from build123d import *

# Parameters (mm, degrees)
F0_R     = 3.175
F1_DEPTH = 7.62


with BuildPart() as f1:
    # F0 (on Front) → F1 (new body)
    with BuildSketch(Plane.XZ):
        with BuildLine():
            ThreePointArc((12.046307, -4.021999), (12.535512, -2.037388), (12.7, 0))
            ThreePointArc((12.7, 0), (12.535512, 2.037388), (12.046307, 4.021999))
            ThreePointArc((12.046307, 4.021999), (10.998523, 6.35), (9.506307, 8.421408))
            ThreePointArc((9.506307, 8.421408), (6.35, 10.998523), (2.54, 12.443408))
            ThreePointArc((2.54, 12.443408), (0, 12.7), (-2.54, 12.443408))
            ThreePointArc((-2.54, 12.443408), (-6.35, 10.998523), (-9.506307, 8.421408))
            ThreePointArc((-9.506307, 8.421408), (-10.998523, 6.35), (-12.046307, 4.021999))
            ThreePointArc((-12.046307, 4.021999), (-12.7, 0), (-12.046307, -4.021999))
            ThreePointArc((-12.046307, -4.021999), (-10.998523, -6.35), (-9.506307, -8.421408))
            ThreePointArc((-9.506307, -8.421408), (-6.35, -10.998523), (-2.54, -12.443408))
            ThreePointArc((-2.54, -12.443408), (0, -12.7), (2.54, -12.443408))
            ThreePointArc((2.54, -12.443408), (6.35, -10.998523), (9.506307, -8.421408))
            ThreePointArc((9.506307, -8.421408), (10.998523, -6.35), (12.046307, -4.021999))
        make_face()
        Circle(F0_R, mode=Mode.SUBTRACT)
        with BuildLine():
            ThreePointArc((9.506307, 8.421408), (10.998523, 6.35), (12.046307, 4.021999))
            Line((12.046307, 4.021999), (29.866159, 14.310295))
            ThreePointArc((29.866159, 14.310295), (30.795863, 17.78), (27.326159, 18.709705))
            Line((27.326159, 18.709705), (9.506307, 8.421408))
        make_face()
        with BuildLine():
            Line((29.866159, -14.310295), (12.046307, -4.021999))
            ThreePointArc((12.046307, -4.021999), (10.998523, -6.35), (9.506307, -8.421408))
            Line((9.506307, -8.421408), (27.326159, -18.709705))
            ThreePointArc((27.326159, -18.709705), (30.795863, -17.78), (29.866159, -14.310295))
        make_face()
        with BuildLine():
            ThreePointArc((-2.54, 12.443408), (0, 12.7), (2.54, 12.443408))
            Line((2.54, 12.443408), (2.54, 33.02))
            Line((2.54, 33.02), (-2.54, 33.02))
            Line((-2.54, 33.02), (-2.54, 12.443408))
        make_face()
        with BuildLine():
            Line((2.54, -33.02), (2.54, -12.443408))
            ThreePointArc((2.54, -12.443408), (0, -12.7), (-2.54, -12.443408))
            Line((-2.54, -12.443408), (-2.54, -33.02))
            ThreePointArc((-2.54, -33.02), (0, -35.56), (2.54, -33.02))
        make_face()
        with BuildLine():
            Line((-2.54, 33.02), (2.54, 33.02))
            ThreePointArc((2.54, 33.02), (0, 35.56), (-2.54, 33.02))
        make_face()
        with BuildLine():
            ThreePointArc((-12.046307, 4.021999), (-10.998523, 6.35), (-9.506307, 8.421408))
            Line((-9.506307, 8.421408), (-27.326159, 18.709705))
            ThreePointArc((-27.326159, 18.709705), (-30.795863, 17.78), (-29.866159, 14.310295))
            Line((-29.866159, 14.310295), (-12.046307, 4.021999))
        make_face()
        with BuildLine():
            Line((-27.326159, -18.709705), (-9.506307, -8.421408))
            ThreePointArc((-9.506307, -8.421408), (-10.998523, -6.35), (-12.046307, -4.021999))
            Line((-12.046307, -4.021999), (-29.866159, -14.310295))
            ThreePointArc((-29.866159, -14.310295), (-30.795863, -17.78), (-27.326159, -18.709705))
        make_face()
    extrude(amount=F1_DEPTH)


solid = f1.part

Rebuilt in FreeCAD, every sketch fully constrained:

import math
import FreeCAD as App
import Part
import Sketcher
Q = App.Units.Quantity

doc = App.newDocument("Part")
body = doc.addObject("PartDesign::Body", "Body")

# Sketch on XZ plane
sketch1 = body.newObject("Sketcher::SketchObject", "Sketch")
sketch1.AttachmentSupport = (doc.getObject("XZ_Plane"), [""])
sketch1.MapMode = "FlatFace"
sketch1.addGeometry(Part.ArcOfCircle(Part.Circle(App.Vector(0.000051, -0.000007, 0), App.Vector(0, 0, 1), 12.699949), math.radians(-18.463083), math.radians(0.000031)), False)
sketch1.addGeometry(Part.ArcOfCircle(Part.Circle(App.Vector(0.000051, 0.000007, 0), App.Vector(0, 0, 1), 12.699949), math.radians(-0.000031), math.radians(18.463083)), False)
sketch1.addGeometry(Part.LineSegment(App.Vector(12.046307, 4.021999, 0), App.Vector(29.866159, 14.310295, 0)), False)
sketch1.addGeometry(Part.ArcOfCircle(Part.Circle(App.Vector(28.596158, 16.51, 0), App.Vector(0, 0, 1), 2.54), math.radians(-59.999986), math.radians(119.999975)), False)
sketch1.addGeometry(Part.LineSegment(App.Vector(27.326159, 18.709705, 0), App.Vector(9.506307, 8.421408, 0)), False)
sketch1.addGeometry(Part.ArcOfCircle(Part.Circle(App.Vector(0.000004, 0.00001, 0), App.Vector(0, 0, 1), 12.69999), math.radians(41.536938), math.radians(78.463052)), False)
sketch1.addGeometry(Part.LineSegment(App.Vector(2.54, 12.443408, 0), App.Vector(2.54, 33.02, 0)), False)
sketch1.addGeometry(Part.ArcOfCircle(Part.Circle(App.Vector(0, 33.02, 0), App.Vector(0, 0, 1), 2.54), math.radians(0), math.radians(180)), False)
sketch1.addGeometry(Part.LineSegment(App.Vector(-2.54, 33.02, 0), App.Vector(-2.54, 12.443408, 0)), False)
sketch1.addGeometry(Part.ArcOfCircle(Part.Circle(App.Vector(-0.000004, 0.00001, 0), App.Vector(0, 0, 1), 12.69999), math.radians(101.536948), math.radians(138.463062)), False)
sketch1.addGeometry(Part.LineSegment(App.Vector(-9.506307, 8.421408, 0), App.Vector(-27.326159, 18.709705, 0)), False)
sketch1.addGeometry(Part.ArcOfCircle(Part.Circle(App.Vector(-28.596158, 16.51, 0), App.Vector(0, 0, 1), 2.54), math.radians(60.000025), math.radians(239.999986)), False)
sketch1.addGeometry(Part.LineSegment(App.Vector(-29.866159, 14.310295, 0), App.Vector(-12.046307, 4.021999, 0)), False)
sketch1.addGeometry(Part.ArcOfCircle(Part.Circle(App.Vector(-0.000009, 0, 0), App.Vector(0, 0, 1), 12.699991), math.radians(161.536948), math.radians(198.463052)), False)
sketch1.addGeometry(Part.LineSegment(App.Vector(-12.046307, -4.021999, 0), App.Vector(-29.866159, -14.310295, 0)), False)
sketch1.addGeometry(Part.ArcOfCircle(Part.Circle(App.Vector(-28.596158, -16.51, 0), App.Vector(0, 0, 1), 2.54), math.radians(120.000014), math.radians(299.999975)), False)
sketch1.addGeometry(Part.LineSegment(App.Vector(-27.326159, -18.709705, 0), App.Vector(-9.506307, -8.421408, 0)), False)
sketch1.addGeometry(Part.ArcOfCircle(Part.Circle(App.Vector(-0.000004, -0.00001, 0), App.Vector(0, 0, 1), 12.69999), math.radians(-138.463062), math.radians(-101.536948)), False)
sketch1.addGeometry(Part.LineSegment(App.Vector(-2.54, -12.443408, 0), App.Vector(-2.54, -33.02, 0)), False)
sketch1.addGeometry(Part.ArcOfCircle(Part.Circle(App.Vector(0, -33.02, 0), App.Vector(0, 0, 1), 2.54), math.radians(180), math.radians(360)), False)
sketch1.addGeometry(Part.LineSegment(App.Vector(2.54, -33.02, 0), App.Vector(2.54, -12.443408, 0)), False)
sketch1.addGeometry(Part.ArcOfCircle(Part.Circle(App.Vector(0.000004, -0.00001, 0), App.Vector(0, 0, 1), 12.69999), math.radians(-78.463052), math.radians(-41.536938)), False)
sketch1.addGeometry(Part.LineSegment(App.Vector(9.506307, -8.421408, 0), App.Vector(27.326159, -18.709705, 0)), False)
sketch1.addGeometry(Part.ArcOfCircle(Part.Circle(App.Vector(28.596158, -16.51, 0), App.Vector(0, 0, 1), 2.54), math.radians(-119.999975), math.radians(59.999986)), False)
sketch1.addGeometry(Part.LineSegment(App.Vector(29.866159, -14.310295, 0), App.Vector(12.046307, -4.021999, 0)), False)
sketch1.addGeometry(Part.Circle(App.Vector(0, 0, 0), App.Vector(0, 0, 1), 3.175), False)
sketch1.addConstraint(Sketcher.Constraint("Tangent", 0, 2, 1, 1))
sketch1.addConstraint(Sketcher.Constraint("Coincident", 1, 2, 2, 1))
sketch1.addConstraint(Sketcher.Constraint("Tangent", 2, 2, 3, 1))
sketch1.addConstraint(Sketcher.Constraint("Tangent", 3, 2, 4, 1))
sketch1.addConstraint(Sketcher.Constraint("Coincident", 4, 2, 5, 1))
sketch1.addConstraint(Sketcher.Constraint("Coincident", 5, 2, 6, 1))
sketch1.addConstraint(Sketcher.Constraint("Tangent", 6, 2, 7, 1))
sketch1.addConstraint(Sketcher.Constraint("Tangent", 7, 2, 8, 1))
sketch1.addConstraint(Sketcher.Constraint("Coincident", 8, 2, 9, 1))
sketch1.addConstraint(Sketcher.Constraint("Coincident", 9, 2, 10, 1))
sketch1.addConstraint(Sketcher.Constraint("Tangent", 10, 2, 11, 1))
sketch1.addConstraint(Sketcher.Constraint("Tangent", 11, 2, 12, 1))
sketch1.addConstraint(Sketcher.Constraint("Coincident", 12, 2, 13, 1))
sketch1.addConstraint(Sketcher.Constraint("Coincident", 13, 2, 14, 1))
sketch1.addConstraint(Sketcher.Constraint("Tangent", 14, 2, 15, 1))
sketch1.addConstraint(Sketcher.Constraint("Tangent", 15, 2, 16, 1))
sketch1.addConstraint(Sketcher.Constraint("Coincident", 16, 2, 17, 1))
sketch1.addConstraint(Sketcher.Constraint("Coincident", 17, 2, 18, 1))
sketch1.addConstraint(Sketcher.Constraint("Tangent", 18, 2, 19, 1))
sketch1.addConstraint(Sketcher.Constraint("Tangent", 19, 2, 20, 1))
sketch1.addConstraint(Sketcher.Constraint("Coincident", 20, 2, 21, 1))
sketch1.addConstraint(Sketcher.Constraint("Coincident", 21, 2, 22, 1))
sketch1.addConstraint(Sketcher.Constraint("Tangent", 22, 2, 23, 1))
sketch1.addConstraint(Sketcher.Constraint("Tangent", 23, 2, 24, 1))
sketch1.addConstraint(Sketcher.Constraint("Coincident", 24, 2, 0, 1))
sketch1.addConstraint(Sketcher.Constraint("Vertical", 6))
sketch1.addConstraint(Sketcher.Constraint("Vertical", 8))
sketch1.addConstraint(Sketcher.Constraint("Vertical", 18))
sketch1.addConstraint(Sketcher.Constraint("Vertical", 20))
sketch1.addConstraint(Sketcher.Constraint("Coincident", 13, 3, -1, 1))
sketch1.addConstraint(Sketcher.Constraint("Coincident", 25, 3, -1, 1))
sketch1.addConstraint(Sketcher.Constraint("Coincident", 9, 3, 5, 3))
sketch1.addConstraint(Sketcher.Constraint("Coincident", 21, 3, 17, 3))
sketch1.addConstraint(Sketcher.Constraint("Equal", 0, 1))
sketch1.addConstraint(Sketcher.Constraint("Equal", 3, 7))
sketch1.addConstraint(Sketcher.Constraint("Equal", 5, 9))
sketch1.addConstraint(Sketcher.Constraint("Equal", 7, 11))
sketch1.addConstraint(Sketcher.Constraint("Equal", 9, 13))
sketch1.addConstraint(Sketcher.Constraint("Equal", 11, 15))
sketch1.addConstraint(Sketcher.Constraint("Equal", 13, 17))
sketch1.addConstraint(Sketcher.Constraint("Equal", 15, 19))
sketch1.addConstraint(Sketcher.Constraint("Equal", 17, 21))
sketch1.addConstraint(Sketcher.Constraint("Equal", 19, 23))
sketch1.addConstraint(Sketcher.Constraint("Symmetric", 3, 3, 15, 3, -1, 1))
sketch1.addConstraint(Sketcher.Constraint("Symmetric", 5, 3, 17, 3, -1, 1))
sketch1.addConstraint(Sketcher.Constraint("Symmetric", 7, 3, 19, 3, -1, 1))
sketch1.addConstraint(Sketcher.Constraint("Symmetric", 11, 3, 23, 3, -1, 1))
sketch1.addConstraint(Sketcher.Constraint("Symmetric", 1, 2, 13, 2, -1, 1))
sketch1.addConstraint(Sketcher.Constraint("Symmetric", 12, 2, 24, 2, -1, 1))
sketch1.addConstraint(Sketcher.Constraint("Symmetric", 3, 3, 11, 3, -2))
sketch1.addConstraint(Sketcher.Constraint("Symmetric", 5, 2, 8, 2, -2))
sketch1.addConstraint(Sketcher.Constraint("PointOnObject", 0, 2, -1))
sketch1.addConstraint(Sketcher.Constraint("Parallel", 2, 4))
sketch1.addConstraint(Sketcher.Constraint("Parallel", 10, 12))
sketch1.addConstraint(Sketcher.Constraint("Parallel", 14, 16))
sketch1.addConstraint(Sketcher.Constraint("Parallel", 12, 22))
sketch1.addConstraint(Sketcher.Constraint("Horizontal", 4, 2, 9, 2))
sketch1.addConstraint(Sketcher.Constraint("Equal", 2, 4))
sketch1.addConstraint(Sketcher.Constraint("Radius", 3, Q("0.1 in")))
sketch1.addConstraint(Sketcher.Constraint("Diameter", 25, Q("0.25 in")))
sketch1.addConstraint(Sketcher.Constraint("Angle", 2, Q("29.999999 deg")))
sketch1.addConstraint(Sketcher.Constraint("DistanceY", -1, 1, 7, 3, Q("1.3 in")))
sketch1.addConstraint(Sketcher.Constraint("DistanceX", -1, 1, 0, 2, Q("0.5 in")))
sketch1.addConstraint(Sketcher.Constraint("DistanceY", 15, 3, 11, 3, Q("1.3 in")))
sketch1.addConstraint(Sketcher.Constraint("Radius", 0, Q("12.699949 mm")))
sketch1.addConstraint(Sketcher.Constraint("DistanceY", -1, 1, 1, 2, Q("4.021999 mm")))
pad1 = body.newObject("PartDesign::Pad", "Pad")
pad1.Profile = sketch1
pad1.Length = Q("0.3 in")

doc.recompute()
